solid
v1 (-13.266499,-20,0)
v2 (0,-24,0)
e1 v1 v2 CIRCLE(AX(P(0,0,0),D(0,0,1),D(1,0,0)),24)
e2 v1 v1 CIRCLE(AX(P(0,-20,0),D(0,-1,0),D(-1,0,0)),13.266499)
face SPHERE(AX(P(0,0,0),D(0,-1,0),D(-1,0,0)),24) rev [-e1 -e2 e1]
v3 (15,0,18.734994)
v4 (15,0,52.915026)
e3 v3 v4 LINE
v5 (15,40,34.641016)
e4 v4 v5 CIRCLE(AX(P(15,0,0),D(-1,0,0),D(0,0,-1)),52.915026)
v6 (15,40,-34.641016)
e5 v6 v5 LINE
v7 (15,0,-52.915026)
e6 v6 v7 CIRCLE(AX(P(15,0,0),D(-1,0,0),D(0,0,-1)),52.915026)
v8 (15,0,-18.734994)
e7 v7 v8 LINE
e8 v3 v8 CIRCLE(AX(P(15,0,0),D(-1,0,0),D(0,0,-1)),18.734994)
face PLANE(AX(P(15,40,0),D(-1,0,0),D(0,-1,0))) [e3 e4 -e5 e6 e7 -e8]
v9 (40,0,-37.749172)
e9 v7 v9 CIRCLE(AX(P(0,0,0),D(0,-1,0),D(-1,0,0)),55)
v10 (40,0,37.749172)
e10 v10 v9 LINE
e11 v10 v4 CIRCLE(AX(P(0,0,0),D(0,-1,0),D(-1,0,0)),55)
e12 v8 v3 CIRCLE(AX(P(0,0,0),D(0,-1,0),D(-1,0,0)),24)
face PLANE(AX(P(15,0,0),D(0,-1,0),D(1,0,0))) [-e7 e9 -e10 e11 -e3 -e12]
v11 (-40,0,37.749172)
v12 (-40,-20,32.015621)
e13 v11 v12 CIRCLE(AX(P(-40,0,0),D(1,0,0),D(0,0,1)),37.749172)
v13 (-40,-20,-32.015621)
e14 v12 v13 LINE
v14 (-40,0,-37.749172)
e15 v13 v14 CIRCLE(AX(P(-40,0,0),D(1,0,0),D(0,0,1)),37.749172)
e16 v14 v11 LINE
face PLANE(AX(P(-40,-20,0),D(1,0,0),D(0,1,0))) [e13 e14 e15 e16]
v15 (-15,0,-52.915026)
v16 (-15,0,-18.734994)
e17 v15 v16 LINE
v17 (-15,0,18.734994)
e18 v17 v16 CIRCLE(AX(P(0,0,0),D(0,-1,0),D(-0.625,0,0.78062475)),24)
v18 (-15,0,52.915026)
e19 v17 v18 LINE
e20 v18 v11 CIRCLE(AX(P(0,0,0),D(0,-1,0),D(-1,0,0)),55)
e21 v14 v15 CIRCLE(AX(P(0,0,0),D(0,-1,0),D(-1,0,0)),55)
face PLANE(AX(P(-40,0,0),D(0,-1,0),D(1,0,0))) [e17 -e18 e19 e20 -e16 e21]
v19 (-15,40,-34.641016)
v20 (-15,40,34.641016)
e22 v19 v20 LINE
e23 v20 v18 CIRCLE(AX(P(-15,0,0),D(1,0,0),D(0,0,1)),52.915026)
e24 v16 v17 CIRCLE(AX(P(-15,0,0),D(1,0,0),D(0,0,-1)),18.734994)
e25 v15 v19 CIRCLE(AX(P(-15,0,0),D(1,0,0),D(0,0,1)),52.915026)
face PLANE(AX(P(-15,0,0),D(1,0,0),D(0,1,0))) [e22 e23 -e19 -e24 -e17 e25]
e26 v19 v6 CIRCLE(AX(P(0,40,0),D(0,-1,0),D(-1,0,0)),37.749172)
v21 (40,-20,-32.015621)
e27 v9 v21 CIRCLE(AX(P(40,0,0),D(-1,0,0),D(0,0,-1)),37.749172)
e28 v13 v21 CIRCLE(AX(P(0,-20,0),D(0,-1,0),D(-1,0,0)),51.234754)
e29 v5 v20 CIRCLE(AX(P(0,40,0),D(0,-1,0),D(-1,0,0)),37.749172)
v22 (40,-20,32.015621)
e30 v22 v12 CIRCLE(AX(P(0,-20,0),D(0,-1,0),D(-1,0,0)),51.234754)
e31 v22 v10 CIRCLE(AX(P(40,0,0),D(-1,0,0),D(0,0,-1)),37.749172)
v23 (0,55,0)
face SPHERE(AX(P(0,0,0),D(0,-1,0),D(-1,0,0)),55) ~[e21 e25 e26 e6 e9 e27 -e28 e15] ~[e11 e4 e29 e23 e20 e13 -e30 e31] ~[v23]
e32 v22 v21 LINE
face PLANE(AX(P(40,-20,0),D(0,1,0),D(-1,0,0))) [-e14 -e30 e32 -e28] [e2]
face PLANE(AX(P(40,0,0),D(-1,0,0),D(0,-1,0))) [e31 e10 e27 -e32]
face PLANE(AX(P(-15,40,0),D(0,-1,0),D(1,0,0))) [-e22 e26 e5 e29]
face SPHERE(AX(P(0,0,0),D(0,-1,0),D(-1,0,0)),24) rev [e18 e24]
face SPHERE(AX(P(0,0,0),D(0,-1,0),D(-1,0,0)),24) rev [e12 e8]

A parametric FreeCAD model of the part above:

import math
import FreeCAD as App
import Part
import Sketcher
from FreeCAD import Vector
Q = App.Units.Quantity

doc = App.newDocument("Part")
params = doc.addObject("Spreadsheet::Sheet", "Params")
for row, (alias, value) in enumerate([
    ("sketch1_radius", "55 mm"),
    ("sketch1_radius2", "24 mm"),
    ("revolution_angle", "360 deg"),
    ("sketch2_width", "30 mm"),
    ("sketch2_width2", "80 mm"),
    ("sketch2_height", "20 mm"),
    ("pocket1_length", "1000 mm"),
], start=1):
    params.set(f"A{row}", alias)
    params.set(f"B{row}", "=" + value)
    params.setAlias(f"B{row}", alias)

body = doc.addObject("PartDesign::Body", "Body")

sketch1 = body.newObject("Sketcher::SketchObject", "Sketch")
sketch1.AttachmentSupport = (doc.getObject("XY_Plane"), [""])
sketch1.MapMode = "FlatFace"
sketch1.addGeometry([
    Part.LineSegment(Vector(0, 24, 0), Vector(0, 55, 0)),
    Part.ArcOfCircle(Part.Circle(Vector(0, 0, 0), Vector(0, 0, 1), 55), math.radians(90), math.radians(270)),
    Part.LineSegment(Vector(0, -55, 0), Vector(0, -24, 0)),
    Part.ArcOfCircle(Part.Circle(Vector(0, 0, 0), Vector(0, 0, 1), 24), math.radians(90), math.radians(270)),
], False)
sketch1.addConstraint([
    Sketcher.Constraint("Coincident", 0, 2, 1, 1),
    Sketcher.Constraint("Coincident", 1, 2, 2, 1),
    Sketcher.Constraint("Coincident", 2, 2, 3, 2),
    Sketcher.Constraint("Coincident", 3, 1, 0, 1),
    Sketcher.Constraint("Vertical", 0),
    Sketcher.Constraint("Vertical", 2),
    Sketcher.Constraint("Coincident", 1, 3, -1, 1),
    Sketcher.Constraint("Coincident", 3, 3, -1, 1),
    Sketcher.Constraint("PointOnObject", 0, 2, -2),
    Sketcher.Constraint("PointOnObject", 1, 2, -2),
    Sketcher.Constraint("Radius", 1, Q("55 mm")),
    Sketcher.Constraint("Radius", 3, Q("24 mm")),
])
sketch1.setExpression("Constraints[10]", "Params.sketch1_radius")
sketch1.setExpression("Constraints[11]", "Params.sketch1_radius2")
revolution = body.newObject("PartDesign::Revolution", "Revolution")
revolution.Profile = sketch1
revolution.ReferenceAxis = (sketch1, ["V_Axis"])
revolution.setExpression("Angle", "Params.revolution_angle")

sketch2 = body.newObject("Sketcher::SketchObject", "Sketch001")
sketch2.AttachmentSupport = (doc.getObject("XY_Plane"), [""])
sketch2.MapMode = "FlatFace"
sketch2.addGeometry([
    Part.LineSegment(Vector(40, 0, 0), Vector(15, 0, 0)),
    Part.LineSegment(Vector(15, 0, 0), Vector(15, 40, 0)),
    Part.LineSegment(Vector(15, 40, 0), Vector(-15, 40, 0)),
    Part.LineSegment(Vector(-15, 40, 0), Vector(-15, 0, 0)),
    Part.LineSegment(Vector(-15, 0, 0), Vector(-40, 0, 0)),
    Part.LineSegment(Vector(-40, 0, 0), Vector(-40, -20, 0)),
    Part.LineSegment(Vector(-40, -20, 0), Vector(40, -20, 0)),
    Part.LineSegment(Vector(40, -20, 0), Vector(40, 0, 0)),
], False)
sketch2.addConstraint([
    Sketcher.Constraint("Coincident", 0, 2, 1, 1),
    Sketcher.Constraint("Coincident", 1, 2, 2, 1),
    Sketcher.Constraint("Coincident", 2, 2, 3, 1),
    Sketcher.Constraint("Coincident", 3, 2, 4, 1),
    Sketcher.Constraint("Coincident", 4, 2, 5, 1),
    Sketcher.Constraint("Coincident", 5, 2, 6, 1),
    Sketcher.Constraint("Coincident", 6, 2, 7, 1),
    Sketcher.Constraint("Coincident", 7, 2, 0, 1),
    Sketcher.Constraint("Horizontal", 0),
    Sketcher.Constraint("Vertical", 1),
    Sketcher.Constraint("Horizontal", 2),
    Sketcher.Constraint("Vertical", 3),
    Sketcher.Constraint("Horizontal", 4),
    Sketcher.Constraint("Vertical", 5),
    Sketcher.Constraint("Horizontal", 6),
    Sketcher.Constraint("Vertical", 7),
    Sketcher.Constraint("Symmetric", 0, 2, 3, 2, -1, 1),
    Sketcher.Constraint("Symmetric", 4, 2, 7, 2, -2),
    Sketcher.Constraint("DistanceX", 2, 2, 2, 1, Q("30 mm")),
    Sketcher.Constraint("DistanceX", 6, 1, 6, 2, Q("80 mm")),
    Sketcher.Constraint("DistanceY", 5, 2, 5, 1, Q("20 mm")),
    Sketcher.Constraint("DistanceY", 5, 2, 2, 2, Q("60 mm")),
])
sketch2.setExpression("Constraints[18]", "Params.sketch2_width")
sketch2.setExpression("Constraints[19]", "Params.sketch2_width2")
sketch2.setExpression("Constraints[20]", "Params.sketch2_height")
pocket1 = body.newObject("PartDesign::Pocket", "Pocket")
pocket1.Profile = sketch2
pocket1.setExpression("Length", "Params.pocket1_length")
pocket1.Midplane = True

doc.recompute()
